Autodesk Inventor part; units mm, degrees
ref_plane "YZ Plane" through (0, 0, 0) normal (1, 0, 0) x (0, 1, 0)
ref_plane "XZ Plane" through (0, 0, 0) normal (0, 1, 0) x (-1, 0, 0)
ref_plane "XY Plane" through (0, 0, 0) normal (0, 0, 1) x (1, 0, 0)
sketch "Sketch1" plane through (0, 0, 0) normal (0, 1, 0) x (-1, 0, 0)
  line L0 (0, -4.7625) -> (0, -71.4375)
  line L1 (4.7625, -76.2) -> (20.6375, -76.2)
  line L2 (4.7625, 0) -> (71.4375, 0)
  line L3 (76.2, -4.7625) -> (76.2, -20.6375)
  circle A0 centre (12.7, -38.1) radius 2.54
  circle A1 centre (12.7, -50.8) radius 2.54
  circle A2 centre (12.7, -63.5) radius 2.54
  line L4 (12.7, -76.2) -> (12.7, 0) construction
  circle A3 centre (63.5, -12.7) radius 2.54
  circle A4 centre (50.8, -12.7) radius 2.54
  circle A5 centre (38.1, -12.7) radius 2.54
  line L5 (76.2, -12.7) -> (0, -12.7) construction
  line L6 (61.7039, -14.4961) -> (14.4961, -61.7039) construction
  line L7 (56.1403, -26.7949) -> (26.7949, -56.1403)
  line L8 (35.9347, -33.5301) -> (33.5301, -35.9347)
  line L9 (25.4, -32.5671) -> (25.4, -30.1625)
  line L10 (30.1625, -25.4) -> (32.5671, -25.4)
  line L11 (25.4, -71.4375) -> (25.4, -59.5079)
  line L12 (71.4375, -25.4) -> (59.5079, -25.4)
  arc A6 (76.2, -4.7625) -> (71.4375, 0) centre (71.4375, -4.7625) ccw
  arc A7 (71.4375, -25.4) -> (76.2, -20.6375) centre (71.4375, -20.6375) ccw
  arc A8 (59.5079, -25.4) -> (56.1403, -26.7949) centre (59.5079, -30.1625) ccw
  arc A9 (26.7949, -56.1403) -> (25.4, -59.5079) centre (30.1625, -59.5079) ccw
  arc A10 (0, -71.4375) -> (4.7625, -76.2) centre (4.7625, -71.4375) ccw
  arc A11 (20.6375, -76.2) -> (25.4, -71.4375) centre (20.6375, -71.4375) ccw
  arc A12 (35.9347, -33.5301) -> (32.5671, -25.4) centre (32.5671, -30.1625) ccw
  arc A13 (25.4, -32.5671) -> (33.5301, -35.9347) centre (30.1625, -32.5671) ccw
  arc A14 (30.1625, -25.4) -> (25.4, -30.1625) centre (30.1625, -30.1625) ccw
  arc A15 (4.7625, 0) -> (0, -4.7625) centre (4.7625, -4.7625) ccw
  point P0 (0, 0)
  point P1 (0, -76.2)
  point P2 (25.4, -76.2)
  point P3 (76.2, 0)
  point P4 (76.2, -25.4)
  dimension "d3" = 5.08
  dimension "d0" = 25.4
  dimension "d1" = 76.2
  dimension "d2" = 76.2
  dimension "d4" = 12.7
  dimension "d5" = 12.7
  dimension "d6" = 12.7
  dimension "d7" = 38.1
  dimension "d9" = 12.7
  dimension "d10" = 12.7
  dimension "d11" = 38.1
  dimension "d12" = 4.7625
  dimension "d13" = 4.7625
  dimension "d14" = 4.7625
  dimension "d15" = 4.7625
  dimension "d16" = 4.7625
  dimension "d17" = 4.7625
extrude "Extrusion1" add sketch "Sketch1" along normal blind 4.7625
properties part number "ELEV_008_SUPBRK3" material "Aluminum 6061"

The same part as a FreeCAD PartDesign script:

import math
import FreeCAD as App
import Part
import Sketcher
from FreeCAD import Vector
Q = App.Units.Quantity

doc = App.newDocument("Part")
body = doc.addObject("PartDesign::Body", "Body")

# Sketch on XZ plane
sketch1 = body.newObject("Sketcher::SketchObject", "Sketch")
sketch1.AttachmentSupport = (doc.getObject("XZ_Plane"), [""])
sketch1.MapMode = "FlatFace"
sketch1.addGeometry([
    Part.ArcOfCircle(Part.Circle(Vector(-4.7625, -4.7625, 0), Vector(0, 0, 1), 4.7625), math.radians(0), math.radians(90)),  # 0
    Part.LineSegment(Vector(0, -4.7625, 0), Vector(0, -71.4375, 0)),  # 1
    Part.ArcOfCircle(Part.Circle(Vector(-4.7625, -71.4375, 0), Vector(0, 0, 1), 4.7625), math.radians(-90), math.radians(0)),  # 2
    Part.LineSegment(Vector(-4.7625, -76.2, 0), Vector(-20.6375, -76.2, 0)),  # 3
    Part.ArcOfCircle(Part.Circle(Vector(-20.6375, -71.4375, 0), Vector(0, 0, 1), 4.7625), math.radians(180), math.radians(270)),  # 4
    Part.LineSegment(Vector(-25.4, -71.4375, 0), Vector(-25.4, -59.5079, 0)),  # 5
    Part.ArcOfCircle(Part.Circle(Vector(-30.1625, -59.5079, 0), Vector(0, 0, 1), 4.762506), math.radians(0), math.radians(45)),  # 6
    Part.LineSegment(Vector(-26.7949, -56.1403, 0), Vector(-56.1403, -26.7949, 0)),  # 7
    Part.ArcOfCircle(Part.Circle(Vector(-59.5079, -30.1625, 0), Vector(0, 0, 1), 4.7625), math.radians(45), math.radians(90)),  # 8
    Part.LineSegment(Vector(-59.5079, -25.4, 0), Vector(-71.4375, -25.4, 0)),  # 9
    Part.ArcOfCircle(Part.Circle(Vector(-71.4375, -20.6375, 0), Vector(0, 0, 1), 4.7625), math.radians(180), math.radians(270)),  # 10
    Part.LineSegment(Vector(-76.2, -20.6375, 0), Vector(-76.2, -4.7625, 0)),  # 11
    Part.ArcOfCircle(Part.Circle(Vector(-71.4375, -4.7625, 0), Vector(0, 0, 1), 4.7625), math.radians(90), math.radians(180)),  # 12
    Part.LineSegment(Vector(-71.4375, 0, 0), Vector(-4.7625, 0, 0)),  # 13
    Part.Circle(Vector(-12.7, -63.5, 0), Vector(0, 0, 1), 2.54),  # 14
    Part.Circle(Vector(-12.7, -50.8, 0), Vector(0, 0, 1), 2.54),  # 15
    Part.Circle(Vector(-12.7, -38.1, 0), Vector(0, 0, 1), 2.54),  # 16
    Part.ArcOfCircle(Part.Circle(Vector(-32.5671, -30.1625, 0), Vector(0, 0, 1), 4.762506), math.radians(90), math.radians(225)),  # 17
    Part.LineSegment(Vector(-35.9347, -33.5301, 0), Vector(-33.5301, -35.9347, 0)),  # 18
    Part.ArcOfCircle(Part.Circle(Vector(-30.1625, -32.5671, 0), Vector(0, 0, 1), 4.7625), math.radians(-135), math.radians(0)),  # 19
    Part.LineSegment(Vector(-25.4, -32.5671, 0), Vector(-25.4, -30.1625, 0)),  # 20
    Part.ArcOfCircle(Part.Circle(Vector(-30.1625, -30.1625, 0), Vector(0, 0, 1), 4.7625), math.radians(0), math.radians(90)),  # 21
    Part.LineSegment(Vector(-30.1625, -25.4, 0), Vector(-32.5671, -25.4, 0)),  # 22
    Part.Circle(Vector(-38.1, -12.7, 0), Vector(0, 0, 1), 2.54),  # 23
    Part.Circle(Vector(-50.8, -12.7, 0), Vector(0, 0, 1), 2.54),  # 24
    Part.Circle(Vector(-63.5, -12.7, 0), Vector(0, 0, 1), 2.54),  # 25
], False)
sketch1.addConstraint([
    Sketcher.Constraint("Tangent", 0, 1, 1, 1),
    Sketcher.Constraint("Tangent", 1, 2, 2, 2),
    Sketcher.Constraint("Tangent", 2, 1, 3, 1),
    Sketcher.Constraint("Tangent", 3, 2, 4, 2),
    Sketcher.Constraint("Tangent", 4, 1, 5, 1),
    Sketcher.Constraint("Tangent", 5, 2, 6, 1),
    Sketcher.Constraint("Tangent", 6, 2, 7, 1),
    Sketcher.Constraint("Tangent", 7, 2, 8, 1),
    Sketcher.Constraint("Tangent", 8, 2, 9, 1),
    Sketcher.Constraint("Tangent", 9, 2, 10, 2),
    Sketcher.Constraint("Tangent", 10, 1, 11, 1),
    Sketcher.Constraint("Tangent", 11, 2, 12, 2),
    Sketcher.Constraint("Tangent", 12, 1, 13, 1),
    Sketcher.Constraint("Tangent", 13, 2, 0, 2),
    Sketcher.Constraint("Tangent", 17, 2, 18, 1),
    Sketcher.Constraint("Tangent", 18, 2, 19, 1),
    Sketcher.Constraint("Tangent", 19, 2, 20, 1),
    Sketcher.Constraint("Tangent", 20, 2, 21, 1),
    Sketcher.Constraint("Tangent", 21, 2, 22, 1),
    Sketcher.Constraint("Tangent", 22, 2, 17, 1),
    Sketcher.Constraint("Vertical", 1),
    Sketcher.Constraint("Horizontal", 3),
    Sketcher.Constraint("Vertical", 5),
    Sketcher.Constraint("Horizontal", 9),
    Sketcher.Constraint("Vertical", 11),
    Sketcher.Constraint("Horizontal", 13),
    Sketcher.Constraint("Vertical", 20),
    Sketcher.Constraint("Horizontal", 22),
    Sketcher.Constraint("Equal", 0, 2),
    Sketcher.Constraint("Equal", 2, 4),
    Sketcher.Constraint("Equal", 4, 6),
    Sketcher.Constraint("Equal", 6, 8),
    Sketcher.Constraint("Equal", 8, 10),
    Sketcher.Constraint("Equal", 10, 12),
    Sketcher.Constraint("Equal", 14, 15),
    Sketcher.Constraint("Equal", 15, 16),
    Sketcher.Constraint("Equal", 12, 17),
    Sketcher.Constraint("Equal", 17, 19),
    Sketcher.Constraint("Equal", 19, 21),
    Sketcher.Constraint("Equal", 16, 23),
    Sketcher.Constraint("Equal", 23, 24),
    Sketcher.Constraint("Equal", 24, 25),
    Sketcher.Constraint("PointOnObject", 0, 1, -2),
    Sketcher.Constraint("PointOnObject", 12, 1, -1),
    Sketcher.Constraint("Parallel", 7, 18),
    Sketcher.Constraint("Horizontal", 8, 3, 17, 3),
    Sketcher.Constraint("Horizontal", 23, 3, 24, 3),
    Sketcher.Constraint("Horizontal", 24, 3, 25, 3),
    Sketcher.Constraint("Vertical", 14, 3, 15, 3),
    Sketcher.Constraint("Vertical", 15, 3, 16, 3),
    Sketcher.Constraint("Vertical", 6, 3, 19, 3),
    Sketcher.Constraint("Equal", 13, 1),
    Sketcher.Constraint("Equal", 9, 5),
    Sketcher.Constraint("Equal", 3, 11),
    Sketcher.Constraint("Diameter", 14, Q("0.2 in")),
    Sketcher.Constraint("DistanceY", 2, 1, -1, 1, Q("3 in")),
    Sketcher.Constraint("DistanceX", 4, 1, -1, 1, Q("1 in")),
    Sketcher.Constraint("Radius", 0, Q("0.1875 in")),
    Sketcher.Constraint("DistanceY", 14, 3, 16, 3, Q("1 in")),
    Sketcher.Constraint("DistanceX", 25, 3, 23, 3, Q("1 in")),
    Sketcher.Constraint("DistanceY", 2, 1, 15, 3, Q("1 in")),
    Sketcher.Constraint("DistanceX", 14, 3, -1, 1, Q("0.5 in")),
    Sketcher.Constraint("DistanceY", 16, 3, -1, 1, Q("1.5 in")),
    Sketcher.Constraint("DistanceX", 23, 3, -1, 1, Q("1.5 in")),
    Sketcher.Constraint("DistanceY", 23, 3, -1, 1, Q("0.5 in")),
    Sketcher.Constraint("DistanceX", 24, 3, 23, 3, Q("0.5 in")),
    Sketcher.Constraint("DistanceX", 9, 2, 9, 1, Q("11.9296 mm")),
    Sketcher.Constraint("DistanceX", 22, 2, 22, 1, Q("2.4046 mm")),
])
pad1 = body.newObject("PartDesign::Pad", "Pad")
pad1.Profile = sketch1
pad1.Length = Q("0.1875 in")
pad1.Reversed = True

doc.recompute()
